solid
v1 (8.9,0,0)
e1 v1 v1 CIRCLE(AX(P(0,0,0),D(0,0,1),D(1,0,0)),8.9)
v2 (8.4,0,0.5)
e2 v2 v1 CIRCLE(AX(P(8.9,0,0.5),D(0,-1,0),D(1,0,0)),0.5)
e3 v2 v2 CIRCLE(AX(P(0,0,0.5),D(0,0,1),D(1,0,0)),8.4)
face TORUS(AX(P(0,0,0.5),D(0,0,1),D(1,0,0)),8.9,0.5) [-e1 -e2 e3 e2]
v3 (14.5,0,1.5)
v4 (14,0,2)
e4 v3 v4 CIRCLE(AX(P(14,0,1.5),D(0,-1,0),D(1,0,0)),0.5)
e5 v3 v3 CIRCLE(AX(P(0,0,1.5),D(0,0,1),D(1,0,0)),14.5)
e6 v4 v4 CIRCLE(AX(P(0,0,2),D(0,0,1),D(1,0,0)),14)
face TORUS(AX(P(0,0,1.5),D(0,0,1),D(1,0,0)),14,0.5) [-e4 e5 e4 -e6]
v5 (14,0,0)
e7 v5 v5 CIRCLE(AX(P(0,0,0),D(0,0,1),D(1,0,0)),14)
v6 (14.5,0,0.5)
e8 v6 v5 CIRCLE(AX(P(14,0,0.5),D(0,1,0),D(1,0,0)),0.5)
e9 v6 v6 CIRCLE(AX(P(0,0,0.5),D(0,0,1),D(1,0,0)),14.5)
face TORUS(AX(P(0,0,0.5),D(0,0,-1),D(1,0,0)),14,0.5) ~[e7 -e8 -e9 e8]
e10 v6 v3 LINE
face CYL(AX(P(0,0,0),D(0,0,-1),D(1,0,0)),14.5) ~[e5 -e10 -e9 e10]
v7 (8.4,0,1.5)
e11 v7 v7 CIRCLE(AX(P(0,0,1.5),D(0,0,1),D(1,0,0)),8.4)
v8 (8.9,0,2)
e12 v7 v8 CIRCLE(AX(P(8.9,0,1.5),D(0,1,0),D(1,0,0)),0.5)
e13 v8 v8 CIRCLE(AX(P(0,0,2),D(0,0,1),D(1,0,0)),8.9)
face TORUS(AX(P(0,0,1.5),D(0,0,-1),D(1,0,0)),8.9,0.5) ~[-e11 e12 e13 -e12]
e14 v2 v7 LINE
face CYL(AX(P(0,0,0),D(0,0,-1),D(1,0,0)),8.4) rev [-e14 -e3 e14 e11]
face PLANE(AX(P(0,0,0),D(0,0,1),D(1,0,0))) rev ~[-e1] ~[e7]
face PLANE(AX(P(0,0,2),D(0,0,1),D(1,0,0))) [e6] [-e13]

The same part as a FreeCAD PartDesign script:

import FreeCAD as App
import Part
import Sketcher


def edges_at(feature, points):
    """Names of the edges that pass closest to the given points."""
    edges = feature.Shape.Edges
    near = lambda p: min(range(len(edges)), key=lambda i: edges[i].distToShape(Part.Vertex(*p))[0])
    return sorted({f"Edge{near(p) + 1}" for p in points})

doc = App.newDocument("Part")
body = doc.addObject("PartDesign::Body", "Body")

sketch1 = body.newObject("Sketcher::SketchObject", "Sketch")
sketch1.AttachmentSupport = (doc.getObject("XY_Plane"), [""])
sketch1.MapMode = "FlatFace"
sketch1.addGeometry(Part.Circle(App.Vector(0, 0, 0), App.Vector(0, 0, 1), 14), False)
sketch1.addGeometry(Part.Circle(App.Vector(0, 0, 0), App.Vector(0, 0, 1), 8), False)
sketch1.addConstraint(Sketcher.Constraint("Coincident", 0, 3, -1, 1))
sketch1.addConstraint(Sketcher.Constraint("Coincident", 1, 3, -1, 1))
sketch1.addConstraint(Sketcher.Constraint("Diameter", 0, 29.0))
sketch1.addConstraint(Sketcher.Constraint("Diameter", 1, 16.8))
pad1 = body.newObject("PartDesign::Pad", "Pad")
pad1.Profile = sketch1
pad1.Length = 2
doc.recompute()

fillet = body.newObject("PartDesign::Fillet", "Fillet")
fillet.Base = (pad1, edges_at(pad1, [
    (-14.5, 0, 2),
    (-14.5, 0, 0),
    (-8.4, 0, 2),
    (-8.4, 0, 0),
]))
fillet.Radius = 0.5

doc.recompute()
